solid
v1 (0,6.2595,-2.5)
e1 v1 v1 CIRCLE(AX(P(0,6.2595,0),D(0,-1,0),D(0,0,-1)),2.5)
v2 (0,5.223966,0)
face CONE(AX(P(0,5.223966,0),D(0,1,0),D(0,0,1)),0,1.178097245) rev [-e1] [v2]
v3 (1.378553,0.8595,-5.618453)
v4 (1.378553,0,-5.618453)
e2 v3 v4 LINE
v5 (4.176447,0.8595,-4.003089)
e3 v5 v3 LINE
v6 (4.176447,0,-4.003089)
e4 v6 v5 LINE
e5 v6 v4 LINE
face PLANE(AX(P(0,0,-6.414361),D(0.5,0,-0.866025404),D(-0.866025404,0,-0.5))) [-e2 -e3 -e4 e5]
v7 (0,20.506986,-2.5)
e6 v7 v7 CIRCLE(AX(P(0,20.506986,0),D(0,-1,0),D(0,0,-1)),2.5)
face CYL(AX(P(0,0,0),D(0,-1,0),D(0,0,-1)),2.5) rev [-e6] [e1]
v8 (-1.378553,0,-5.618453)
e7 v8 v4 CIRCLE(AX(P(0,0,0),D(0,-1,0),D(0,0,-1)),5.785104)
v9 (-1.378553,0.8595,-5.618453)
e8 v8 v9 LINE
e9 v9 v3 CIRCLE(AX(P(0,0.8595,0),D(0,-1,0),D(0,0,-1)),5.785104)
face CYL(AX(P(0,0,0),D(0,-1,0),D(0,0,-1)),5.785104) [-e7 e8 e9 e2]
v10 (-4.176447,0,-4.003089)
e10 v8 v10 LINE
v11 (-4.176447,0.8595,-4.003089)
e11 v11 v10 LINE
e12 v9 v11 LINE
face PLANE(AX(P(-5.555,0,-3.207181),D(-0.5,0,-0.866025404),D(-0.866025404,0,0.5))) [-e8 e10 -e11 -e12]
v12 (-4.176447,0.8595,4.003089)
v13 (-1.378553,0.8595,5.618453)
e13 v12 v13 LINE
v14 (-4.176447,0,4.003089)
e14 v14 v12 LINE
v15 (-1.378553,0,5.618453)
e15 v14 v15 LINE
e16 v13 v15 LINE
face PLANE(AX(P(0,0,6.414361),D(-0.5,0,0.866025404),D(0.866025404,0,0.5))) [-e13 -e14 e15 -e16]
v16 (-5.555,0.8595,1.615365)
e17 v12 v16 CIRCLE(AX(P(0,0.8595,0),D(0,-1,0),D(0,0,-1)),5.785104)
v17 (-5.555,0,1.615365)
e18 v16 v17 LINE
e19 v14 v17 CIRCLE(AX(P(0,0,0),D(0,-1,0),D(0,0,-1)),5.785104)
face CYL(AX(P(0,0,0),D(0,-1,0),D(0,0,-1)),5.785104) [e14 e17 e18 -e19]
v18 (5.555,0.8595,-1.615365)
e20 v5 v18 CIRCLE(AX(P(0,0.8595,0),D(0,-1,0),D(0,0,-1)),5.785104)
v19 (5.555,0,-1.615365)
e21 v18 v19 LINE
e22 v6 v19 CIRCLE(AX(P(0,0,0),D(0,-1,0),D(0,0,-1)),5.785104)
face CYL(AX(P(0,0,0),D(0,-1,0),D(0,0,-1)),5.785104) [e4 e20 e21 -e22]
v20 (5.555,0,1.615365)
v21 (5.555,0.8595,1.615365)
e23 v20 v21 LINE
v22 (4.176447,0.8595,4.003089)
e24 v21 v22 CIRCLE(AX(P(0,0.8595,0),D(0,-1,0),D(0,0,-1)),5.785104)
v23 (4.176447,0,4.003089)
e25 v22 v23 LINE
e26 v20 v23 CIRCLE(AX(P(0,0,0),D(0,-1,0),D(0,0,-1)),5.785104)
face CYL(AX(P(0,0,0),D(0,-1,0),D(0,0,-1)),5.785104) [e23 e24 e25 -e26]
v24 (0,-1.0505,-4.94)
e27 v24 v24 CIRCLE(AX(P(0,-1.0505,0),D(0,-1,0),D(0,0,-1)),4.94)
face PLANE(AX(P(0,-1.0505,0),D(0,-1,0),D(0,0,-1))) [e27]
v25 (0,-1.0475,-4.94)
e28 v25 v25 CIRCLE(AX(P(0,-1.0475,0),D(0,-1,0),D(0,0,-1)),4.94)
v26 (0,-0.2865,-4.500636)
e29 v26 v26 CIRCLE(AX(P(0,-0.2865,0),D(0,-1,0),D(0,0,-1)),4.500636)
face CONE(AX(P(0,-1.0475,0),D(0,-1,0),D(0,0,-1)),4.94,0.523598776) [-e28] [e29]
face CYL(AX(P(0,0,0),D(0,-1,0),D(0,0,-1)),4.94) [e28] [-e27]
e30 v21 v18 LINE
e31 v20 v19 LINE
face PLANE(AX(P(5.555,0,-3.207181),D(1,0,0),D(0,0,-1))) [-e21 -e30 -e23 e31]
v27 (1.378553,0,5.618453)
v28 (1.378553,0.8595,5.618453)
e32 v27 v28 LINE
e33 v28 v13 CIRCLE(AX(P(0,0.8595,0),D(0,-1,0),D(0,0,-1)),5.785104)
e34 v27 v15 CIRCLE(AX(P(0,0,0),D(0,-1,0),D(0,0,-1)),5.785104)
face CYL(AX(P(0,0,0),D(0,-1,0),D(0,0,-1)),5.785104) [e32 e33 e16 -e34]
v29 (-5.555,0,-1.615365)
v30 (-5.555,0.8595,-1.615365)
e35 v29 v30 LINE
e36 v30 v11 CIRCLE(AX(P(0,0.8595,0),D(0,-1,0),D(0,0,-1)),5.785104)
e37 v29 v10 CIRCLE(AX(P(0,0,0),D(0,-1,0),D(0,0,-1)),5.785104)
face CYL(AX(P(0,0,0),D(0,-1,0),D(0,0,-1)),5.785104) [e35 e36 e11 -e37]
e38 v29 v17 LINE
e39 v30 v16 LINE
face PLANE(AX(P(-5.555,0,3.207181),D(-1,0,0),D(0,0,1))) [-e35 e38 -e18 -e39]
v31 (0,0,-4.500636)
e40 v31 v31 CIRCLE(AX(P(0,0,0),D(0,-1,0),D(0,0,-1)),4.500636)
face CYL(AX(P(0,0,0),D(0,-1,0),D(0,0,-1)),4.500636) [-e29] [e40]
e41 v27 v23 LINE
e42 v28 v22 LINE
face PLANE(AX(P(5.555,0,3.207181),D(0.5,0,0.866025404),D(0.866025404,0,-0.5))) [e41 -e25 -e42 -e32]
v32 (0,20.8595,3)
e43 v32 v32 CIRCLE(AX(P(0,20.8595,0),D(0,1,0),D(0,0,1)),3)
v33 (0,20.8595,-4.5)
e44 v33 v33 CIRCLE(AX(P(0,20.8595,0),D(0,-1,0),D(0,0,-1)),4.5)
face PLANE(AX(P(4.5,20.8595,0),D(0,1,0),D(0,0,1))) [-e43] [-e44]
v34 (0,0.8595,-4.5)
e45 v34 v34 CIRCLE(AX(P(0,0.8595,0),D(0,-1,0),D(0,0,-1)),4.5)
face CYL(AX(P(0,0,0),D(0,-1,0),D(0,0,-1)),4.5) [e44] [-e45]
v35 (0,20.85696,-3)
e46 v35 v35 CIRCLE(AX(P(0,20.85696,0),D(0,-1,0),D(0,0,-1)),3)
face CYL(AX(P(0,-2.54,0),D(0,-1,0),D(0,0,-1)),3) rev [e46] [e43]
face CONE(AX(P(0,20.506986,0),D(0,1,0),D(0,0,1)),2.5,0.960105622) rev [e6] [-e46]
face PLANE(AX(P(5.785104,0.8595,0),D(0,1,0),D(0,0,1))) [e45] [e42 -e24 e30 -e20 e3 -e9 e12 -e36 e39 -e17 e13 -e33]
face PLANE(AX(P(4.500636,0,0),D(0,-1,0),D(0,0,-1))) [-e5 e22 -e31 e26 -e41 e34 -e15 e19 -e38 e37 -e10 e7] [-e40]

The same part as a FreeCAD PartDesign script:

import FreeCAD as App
import Part
import Sketcher

V = App.Vector
Q = App.Units.Quantity

doc = App.newDocument("Part")
body = doc.addObject("PartDesign::Body", "Body")

sketch1 = doc.addObject("Sketcher::SketchObject", "Sketch")
body.addObject(sketch1)
sketch1.AttachmentSupport = (doc.XY_Plane, [""])
sketch1.MapMode = "FlatFace"
sketch1.addGeometry([
    Part.LineSegment(V(4.5006, 0, 0), V(5.7851, 0, 0)),
    Part.LineSegment(V(5.7851, 0, 0), V(5.7851, 0.8595, 0)),
    Part.LineSegment(V(5.7851, 0.8595, 0), V(4.5, 0.8595, 0)),
    Part.LineSegment(V(4.5, 0.8595, 0), V(4.5, 20.8595, 0)),
    Part.LineSegment(V(4.5, 20.8595, 0), V(2.5, 20.8595, 0)),
    Part.LineSegment(V(2.5, 20.8595, 0), V(2.5, 11.2595, 0)),
    Part.LineSegment(V(2.5, 11.2595, 0), V(0, 11.2595, 0)),
    Part.LineSegment(V(0, 11.2595, 0), V(0, -1.0505, 0)),
    Part.LineSegment(V(0, -1.0505, 0), V(4.94, -1.0505, 0)),
    Part.LineSegment(V(4.94, -1.0505, 0), V(4.94, -1.0475, 0)),
    Part.LineSegment(V(4.94, -1.0475, 0), V(4.5006, -0.2865, 0)),
    Part.LineSegment(V(4.5006, -0.2865, 0), V(4.5006, 0, 0)),
], False)
sketch1.addConstraint([
    Sketcher.Constraint("Coincident", 0, 2, 1, 1),
    Sketcher.Constraint("Coincident", 1, 2, 2, 1),
    Sketcher.Constraint("Coincident", 2, 2, 3, 1),
    Sketcher.Constraint("Coincident", 3, 2, 4, 1),
    Sketcher.Constraint("Coincident", 4, 2, 5, 1),
    Sketcher.Constraint("Coincident", 5, 2, 6, 1),
    Sketcher.Constraint("Coincident", 6, 2, 7, 1),
    Sketcher.Constraint("Coincident", 7, 2, 8, 1),
    Sketcher.Constraint("Coincident", 8, 2, 9, 1),
    Sketcher.Constraint("Coincident", 9, 2, 10, 1),
    Sketcher.Constraint("Coincident", 10, 2, 11, 1),
    Sketcher.Constraint("Coincident", 11, 2, 0, 1),
    Sketcher.Constraint("Horizontal", 0),
    Sketcher.Constraint("Vertical", 1),
    Sketcher.Constraint("Horizontal", 2),
    Sketcher.Constraint("Vertical", 3),
    Sketcher.Constraint("Horizontal", 4),
    Sketcher.Constraint("Vertical", 5),
    Sketcher.Constraint("Horizontal", 6),
    Sketcher.Constraint("Vertical", 7),
    Sketcher.Constraint("Horizontal", 8),
    Sketcher.Constraint("Vertical", 9),
    Sketcher.Constraint("Vertical", 11),
    Sketcher.Constraint("PointOnObject", 0, 2, -1),
    Sketcher.Constraint("PointOnObject", 6, 2, -2),
    Sketcher.Constraint("DistanceX", 4, 2, 4, 1, 2.0),
    Sketcher.Constraint("DistanceY", 3, 1, 3, 2, 20.0),
    Sketcher.Constraint("Angle", 10, Q("120 deg")),
    Sketcher.Constraint("DistanceX", 6, 2, 6, 1, 2.5),
    Sketcher.Constraint("DistanceY", 5, 2, 5, 1, 9.6),
    Sketcher.Constraint("DistanceX", 8, 1, 8, 2, 4.94),
    Sketcher.Constraint("DistanceY", 7, 2, 7, 1, 12.31),
    Sketcher.Constraint("DistanceY", 9, 1, 9, 2, 0.003),
    Sketcher.Constraint("DistanceY", 1, 1, 1, 2, 0.8595),
    Sketcher.Constraint("DistanceY", 11, 1, 11, 2, 0.2865),
    Sketcher.Constraint("DistanceX", 0, 1, 0, 2, 1.284468),
])
revolution = doc.addObject("PartDesign::Revolution", "Revolution")
body.addObject(revolution)
revolution.Profile = sketch1
revolution.ReferenceAxis = (sketch1, ["V_Axis"])
revolution.Angle = 360

sketch2 = doc.addObject("Sketcher::SketchObject", "Sketch001")
body.addObject(sketch2)
sketch2.AttachmentSupport = (doc.XY_Plane, [""])
sketch2.MapMode = "FlatFace"
sketch2.addGeometry([
    Part.LineSegment(V(2.5, 6.3, 0), V(2.5, 20.9, 0)),
    Part.LineSegment(V(2.5, 20.9, 0), V(0, 20.9, 0)),
    Part.LineSegment(V(0, 20.9, 0), V(0, 5.2, 0)),
    Part.LineSegment(V(0, 5.2, 0), V(2.5, 6.3, 0)),
], False)
sketch2.addConstraint([
    Sketcher.Constraint("Coincident", 0, 2, 1, 1),
    Sketcher.Constraint("Coincident", 1, 2, 2, 1),
    Sketcher.Constraint("Coincident", 2, 2, 3, 1),
    Sketcher.Constraint("Coincident", 3, 2, 0, 1),
    Sketcher.Constraint("Vertical", 0),
    Sketcher.Constraint("Horizontal", 1),
    Sketcher.Constraint("Vertical", 2),
    Sketcher.Constraint("PointOnObject", 1, 2, -2),
    Sketcher.Constraint("DistanceX", 1, 2, 1, 1, 2.5),
    Sketcher.Constraint("DistanceY", 0, 1, 0, 2, 14.6),
    Sketcher.Constraint("Angle", 3, Q("22.5 deg")),
    Sketcher.Constraint("DistanceY", -1, 1, 0, 2, 20.8595),
])
groove = doc.addObject("PartDesign::Groove", "Groove")
body.addObject(groove)
groove.Profile = sketch2
groove.ReferenceAxis = (sketch2, ["V_Axis"])
groove.Angle = 360

sketch3 = doc.addObject("Sketcher::SketchObject", "Sketch002")
body.addObject(sketch3)
sketch3.AttachmentSupport = (doc.XY_Plane, [""])
sketch3.MapMode = "FlatFace"
sketch3.addGeometry([
    Part.LineSegment(V(2.5, 20.51, 0), V(3, 20.86, 0)),
    Part.LineSegment(V(3, 20.86, 0), V(3, 21.11, 0)),
    Part.LineSegment(V(3, 21.11, 0), V(2.5, 21.11, 0)),
    Part.LineSegment(V(2.5, 21.11, 0), V(2.5, 20.51, 0)),
], False)
sketch3.addConstraint([
    Sketcher.Constraint("Coincident", 0, 2, 1, 1),
    Sketcher.Constraint("Coincident", 1, 2, 2, 1),
    Sketcher.Constraint("Coincident", 2, 2, 3, 1),
    Sketcher.Constraint("Coincident", 3, 2, 0, 1),
    Sketcher.Constraint("Vertical", 1),
    Sketcher.Constraint("Horizontal", 2),
    Sketcher.Constraint("Vertical", 3),
    Sketcher.Constraint("DistanceX", 2, 2, 2, 1, 0.5),
    Sketcher.Constraint("DistanceX", -1, 1, 0, 2, 3.0),
    Sketcher.Constraint("Angle", 0, Q("34.99 deg")),
    Sketcher.Constraint("DistanceY", 1, 1, 1, 2, 0.25654),
    Sketcher.Constraint("DistanceY", -1, 1, 1, 2, 21.1135),
])
groove2 = doc.addObject("PartDesign::Groove", "Groove001")
body.addObject(groove2)
groove2.Profile = sketch3
groove2.ReferenceAxis = (sketch3, ["V_Axis"])
groove2.Angle = 360

sketch4 = doc.addObject("Sketcher::SketchObject", "Sketch003")
body.addObject(sketch4)
sketch4.AttachmentSupport = (doc.XZ_Plane, [""])
sketch4.MapMode = "FlatFace"
sketch4.AttachmentOffset = App.Placement(V(0, 0, -0.8595), App.Rotation())
sketch4.addGeometry([
    Part.Circle(V(0, 0, 0), V(0, 0, 1), 6),
    Part.LineSegment(V(6, 3, 0), V(0, 6, 0)),
    Part.LineSegment(V(0, 6, 0), V(-6, 3, 0)),
    Part.LineSegment(V(-6, 3, 0), V(-6, -3, 0)),
    Part.LineSegment(V(-6, -3, 0), V(0, -6, 0)),
    Part.LineSegment(V(0, -6, 0), V(6, -3, 0)),
    Part.LineSegment(V(6, -3, 0), V(6, 3, 0)),
], False)
sketch4.addConstraint([
    Sketcher.Constraint("Coincident", 1, 2, 2, 1),
    Sketcher.Constraint("Coincident", 2, 2, 3, 1),
    Sketcher.Constraint("Coincident", 3, 2, 4, 1),
    Sketcher.Constraint("Coincident", 4, 2, 5, 1),
    Sketcher.Constraint("Coincident", 5, 2, 6, 1),
    Sketcher.Constraint("Coincident", 6, 2, 1, 1),
    Sketcher.Constraint("Vertical", 3),
    Sketcher.Constraint("Vertical", 6),
    Sketcher.Constraint("Coincident", 0, 3, -1, 1),
    Sketcher.Constraint("Symmetric", 1, 2, 4, 2, -1, 1),
    Sketcher.Constraint("Symmetric", 2, 2, 5, 2, -1, 1),
    Sketcher.Constraint("PointOnObject", 1, 2, -2),
    Sketcher.Constraint("Parallel", 1, 4),
    Sketcher.Constraint("Horizontal", 3, 2, 5, 2),
    Sketcher.Constraint("Angle", 1, Q("150 deg")),
    Sketcher.Constraint("Diameter", 0, 12.8886),
    Sketcher.Constraint("DistanceX", 3, 2, 5, 2, 11.11),
    Sketcher.Constraint("DistanceY", 3, 2, 3, 1, 6.414361),
])
pocket1 = doc.addObject("PartDesign::Pocket", "Pocket")
body.addObject(pocket1)
pocket1.Profile = sketch4
pocket1.Length = 0.8595
pocket1.Reversed = True

doc.recompute()
